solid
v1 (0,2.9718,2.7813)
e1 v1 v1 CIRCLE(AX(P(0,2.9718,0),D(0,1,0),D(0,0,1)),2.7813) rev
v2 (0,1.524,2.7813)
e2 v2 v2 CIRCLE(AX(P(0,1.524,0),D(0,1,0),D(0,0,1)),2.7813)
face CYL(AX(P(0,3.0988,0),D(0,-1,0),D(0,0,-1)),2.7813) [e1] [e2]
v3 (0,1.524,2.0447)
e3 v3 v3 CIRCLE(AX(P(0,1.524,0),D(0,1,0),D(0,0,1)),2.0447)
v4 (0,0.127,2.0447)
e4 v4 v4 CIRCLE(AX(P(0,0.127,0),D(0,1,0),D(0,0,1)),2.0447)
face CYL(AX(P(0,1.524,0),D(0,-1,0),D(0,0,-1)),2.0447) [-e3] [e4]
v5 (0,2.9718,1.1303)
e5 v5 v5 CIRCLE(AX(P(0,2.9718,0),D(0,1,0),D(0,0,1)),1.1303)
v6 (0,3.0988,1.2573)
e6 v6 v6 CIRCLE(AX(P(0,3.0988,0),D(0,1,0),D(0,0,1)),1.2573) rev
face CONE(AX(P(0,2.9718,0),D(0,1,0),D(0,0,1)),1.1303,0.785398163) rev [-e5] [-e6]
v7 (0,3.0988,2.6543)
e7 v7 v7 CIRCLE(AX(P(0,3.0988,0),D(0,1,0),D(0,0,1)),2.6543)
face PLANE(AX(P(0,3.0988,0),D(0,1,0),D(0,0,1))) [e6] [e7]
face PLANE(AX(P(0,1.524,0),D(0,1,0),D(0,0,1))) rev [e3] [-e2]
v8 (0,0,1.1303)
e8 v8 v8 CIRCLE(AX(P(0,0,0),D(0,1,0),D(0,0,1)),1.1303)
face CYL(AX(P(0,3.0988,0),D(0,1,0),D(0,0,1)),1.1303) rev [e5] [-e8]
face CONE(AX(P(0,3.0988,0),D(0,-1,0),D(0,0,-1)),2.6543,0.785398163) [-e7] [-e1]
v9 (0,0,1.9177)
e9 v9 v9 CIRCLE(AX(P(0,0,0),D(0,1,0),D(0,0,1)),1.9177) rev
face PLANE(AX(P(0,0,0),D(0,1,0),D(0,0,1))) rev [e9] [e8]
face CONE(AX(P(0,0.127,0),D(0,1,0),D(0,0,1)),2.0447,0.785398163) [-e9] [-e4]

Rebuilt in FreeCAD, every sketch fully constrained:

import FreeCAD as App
import Part
import Sketcher
Q = App.Units.Quantity


def edges_at(feature, points):
    """Names of the edges that pass closest to the given points."""
    edges = feature.Shape.Edges
    near = lambda p: min(range(len(edges)), key=lambda i: edges[i].distToShape(Part.Vertex(*p))[0])
    return sorted({f"Edge{near(p) + 1}" for p in points})

doc = App.newDocument("Part")
params = doc.addObject("Spreadsheet::Sheet", "Params")
for row, (alias, value) in enumerate([
    ("sketch1_diameter", "0.161 in"),
    ("pad1_length", "0.06 in"),
    ("sketch2_diameter", "0.219 in"),
    ("pad2_length", "0.062 in"),
    ("sketch3_diameter", "0.089 in"),
    ("hole_diameter", "0.089 in"),
    ("chamfer_size", "0.005 in"),
], start=1):
    params.set(f"A{row}", alias)
    params.set(f"B{row}", "=" + value)
    params.setAlias(f"B{row}", alias)

body = doc.addObject("PartDesign::Body", "Body")

sketch1 = doc.addObject("Sketcher::SketchObject", "Sketch")
body.addObject(sketch1)
sketch1.AttachmentSupport = (doc.XZ_Plane, [""])
sketch1.MapMode = "FlatFace"
sketch1.addGeometry(Part.Circle(App.Vector(0, 0, 0), App.Vector(0, 0, 1), 2.0447), False)
sketch1.addConstraint(Sketcher.Constraint("Coincident", 0, 3, -1, 1))
sketch1.addConstraint(Sketcher.Constraint("Diameter", 0, Q("0.161 in")))
sketch1.setExpression("Constraints[1]", "Params.sketch1_diameter")
pad1 = doc.addObject("PartDesign::Pad", "Pad")
body.addObject(pad1)
pad1.Profile = sketch1
pad1.setExpression("Length", "Params.pad1_length")
pad1.Reversed = True

sketch2 = doc.addObject("Sketcher::SketchObject", "Sketch001")
body.addObject(sketch2)
sketch2.AttachmentSupport = (doc.XZ_Plane, [""])
sketch2.MapMode = "FlatFace"
sketch2.AttachmentOffset = App.Placement(App.Vector(0, 0, -0.06 * 25.4), App.Rotation())
sketch2.addGeometry(Part.Circle(App.Vector(0, 0, 0), App.Vector(0, 0, 1), 2.7813), False)
sketch2.addConstraint(Sketcher.Constraint("Coincident", 0, 3, -1, 1))
sketch2.addConstraint(Sketcher.Constraint("Diameter", 0, Q("0.219 in")))
sketch2.setExpression("Constraints[1]", "Params.sketch2_diameter")
pad2 = doc.addObject("PartDesign::Pad", "Pad001")
body.addObject(pad2)
pad2.Profile = sketch2
pad2.setExpression("Length", "Params.pad2_length")
pad2.Reversed = True

sketch3 = doc.addObject("Sketcher::SketchObject", "Sketch002")
body.addObject(sketch3)
sketch3.AttachmentSupport = (doc.XZ_Plane, [""])
sketch3.MapMode = "FlatFace"
sketch3.AttachmentOffset = App.Placement(App.Vector(0, 0, -0.122 * 25.4), App.Rotation())
sketch3.addGeometry(Part.Circle(App.Vector(0, 0, 0), App.Vector(0, 0, 1), 1.1303), False)
sketch3.addConstraint(Sketcher.Constraint("Coincident", 0, 3, -1, 1))
sketch3.addConstraint(Sketcher.Constraint("Diameter", 0, Q("0.089 in")))
sketch3.setExpression("Constraints[1]", "Params.sketch3_diameter")
doc.recompute()
hole = doc.addObject("PartDesign::Hole", "Hole")
body.addObject(hole)
hole.Profile = sketch3
hole.ThreadType = "None"
hole.setExpression("Diameter", "Params.hole_diameter")
hole.DepthType = "ThroughAll"
hole.Reversed = True
doc.recompute()

chamfer = doc.addObject("PartDesign::Chamfer", "Chamfer")
body.addObject(chamfer)
chamfer.Base = (hole, edges_at(hole, [(1.13, 3.099, 0), (-2.045, 0, 0), (-2.781, 3.099, 0)]))
chamfer.setExpression("Size", "Params.chamfer_size")

doc.recompute()
